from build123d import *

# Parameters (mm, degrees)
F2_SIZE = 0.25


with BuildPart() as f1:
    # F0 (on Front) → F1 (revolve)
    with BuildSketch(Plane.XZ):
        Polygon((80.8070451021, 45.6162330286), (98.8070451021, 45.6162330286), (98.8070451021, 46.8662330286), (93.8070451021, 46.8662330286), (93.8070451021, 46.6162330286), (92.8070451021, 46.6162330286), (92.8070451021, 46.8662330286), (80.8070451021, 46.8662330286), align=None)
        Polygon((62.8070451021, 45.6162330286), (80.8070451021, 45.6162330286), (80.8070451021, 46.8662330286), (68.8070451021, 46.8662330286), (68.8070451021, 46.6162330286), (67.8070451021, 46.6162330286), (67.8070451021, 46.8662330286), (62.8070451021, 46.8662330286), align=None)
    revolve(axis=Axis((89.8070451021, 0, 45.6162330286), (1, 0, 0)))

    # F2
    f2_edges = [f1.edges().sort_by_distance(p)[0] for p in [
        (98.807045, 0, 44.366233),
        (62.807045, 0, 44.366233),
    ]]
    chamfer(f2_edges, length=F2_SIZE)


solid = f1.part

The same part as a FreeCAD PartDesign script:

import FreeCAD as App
import Part
import Sketcher
from FreeCAD import Vector
Q = App.Units.Quantity


def edges_at(feature, points):
    """Names of the edges that pass closest to the given points."""
    edges = feature.Shape.Edges
    near = lambda p: min(range(len(edges)), key=lambda i: edges[i].distToShape(Part.Vertex(*p))[0])
    return sorted({f"Edge{near(p) + 1}" for p in points})


def add_polygon(sketch, points):
    """Adds a closed chain of lines whose ends are joined by coincident constraints."""
    first, n = sketch.GeometryCount, len(points)
    for a, b in zip(points, points[1:] + points[:1]):
        sketch.addGeometry(Part.LineSegment(App.Vector(*a, 0), App.Vector(*b, 0)), False)
    for i in range(n):
        sketch.addConstraint(Sketcher.Constraint("Coincident", first + i, 2, first + (i + 1) % n, 1))

doc = App.newDocument("Part")
body = doc.addObject("PartDesign::Body", "Body")

sketch1 = body.newObject("Sketcher::SketchObject", "Sketch")
sketch1.AttachmentSupport = (doc.getObject("XZ_Plane"), [""])
sketch1.MapMode = "FlatFace"
add_polygon(sketch1, [(98.81, 45.62), (98.81, 46.87), (93.81, 46.87), (93.81, 46.62), (92.81, 46.62), (92.81, 46.87), (68.81, 46.87), (68.81, 46.62), (67.81, 46.62), (67.81, 46.87), (62.81, 46.87), (62.81, 45.62)])
sketch1.addGeometry(Part.LineSegment(Vector(62.81, 45.62, 0), Vector(98.81, 45.62, 0)), True)
sketch1.addConstraint(Sketcher.Constraint("Vertical", 0))
sketch1.addConstraint(Sketcher.Constraint("Horizontal", 1))
sketch1.addConstraint(Sketcher.Constraint("Vertical", 2))
sketch1.addConstraint(Sketcher.Constraint("Horizontal", 3))
sketch1.addConstraint(Sketcher.Constraint("Vertical", 4))
sketch1.addConstraint(Sketcher.Constraint("Horizontal", 5))
sketch1.addConstraint(Sketcher.Constraint("Vertical", 6))
sketch1.addConstraint(Sketcher.Constraint("Horizontal", 7))
sketch1.addConstraint(Sketcher.Constraint("Vertical", 8))
sketch1.addConstraint(Sketcher.Constraint("Horizontal", 9))
sketch1.addConstraint(Sketcher.Constraint("Vertical", 10))
sketch1.addConstraint(Sketcher.Constraint("Horizontal", 11))
sketch1.addConstraint(Sketcher.Constraint("Horizontal", 12))
sketch1.addConstraint(Sketcher.Constraint("Coincident", 12, 1, 10, 2))
sketch1.addConstraint(Sketcher.Constraint("Horizontal", 1, 2, 4, 2))
sketch1.addConstraint(Sketcher.Constraint("Horizontal", 3, 2, 6, 2))
sketch1.addConstraint(Sketcher.Constraint("Horizontal", 5, 2, 8, 2))
sketch1.addConstraint(Sketcher.Constraint("Vertical", 0, 2, 12, 2))
sketch1.addConstraint(Sketcher.Constraint("Equal", 3, 7))
sketch1.addConstraint(Sketcher.Constraint("Equal", 1, 9))
sketch1.addConstraint(Sketcher.Constraint("DistanceX", 1, 2, 1, 1, Q("5 mm")))
sketch1.addConstraint(Sketcher.Constraint("DistanceX", 3, 2, 3, 1, Q("1 mm")))
sketch1.addConstraint(Sketcher.Constraint("DistanceX", 5, 2, 5, 1, Q("24 mm")))
sketch1.addConstraint(Sketcher.Constraint("DistanceY", 10, 2, 7, 2, Q("1 mm")))
sketch1.addConstraint(Sketcher.Constraint("DistanceY", 0, 1, 0, 2, Q("1.25 mm")))
sketch1.addConstraint(Sketcher.Constraint("DistanceX", -1, 1, 0, 2, Q("98.807045 mm")))
sketch1.addConstraint(Sketcher.Constraint("DistanceY", -1, 1, 0, 2, Q("46.866233 mm")))
revolution = body.newObject("PartDesign::Revolution", "Revolution")
revolution.Profile = sketch1
revolution.ReferenceAxis = (sketch1, ["Axis0"])
revolution.Angle = 360
doc.recompute()

chamfer = body.newObject("PartDesign::Chamfer", "Chamfer")
chamfer.Base = (revolution, edges_at(revolution, [(98.807, 0, 44.366), (62.807, 0, 44.366)]))
chamfer.Size = 0.25

doc.recompute()
